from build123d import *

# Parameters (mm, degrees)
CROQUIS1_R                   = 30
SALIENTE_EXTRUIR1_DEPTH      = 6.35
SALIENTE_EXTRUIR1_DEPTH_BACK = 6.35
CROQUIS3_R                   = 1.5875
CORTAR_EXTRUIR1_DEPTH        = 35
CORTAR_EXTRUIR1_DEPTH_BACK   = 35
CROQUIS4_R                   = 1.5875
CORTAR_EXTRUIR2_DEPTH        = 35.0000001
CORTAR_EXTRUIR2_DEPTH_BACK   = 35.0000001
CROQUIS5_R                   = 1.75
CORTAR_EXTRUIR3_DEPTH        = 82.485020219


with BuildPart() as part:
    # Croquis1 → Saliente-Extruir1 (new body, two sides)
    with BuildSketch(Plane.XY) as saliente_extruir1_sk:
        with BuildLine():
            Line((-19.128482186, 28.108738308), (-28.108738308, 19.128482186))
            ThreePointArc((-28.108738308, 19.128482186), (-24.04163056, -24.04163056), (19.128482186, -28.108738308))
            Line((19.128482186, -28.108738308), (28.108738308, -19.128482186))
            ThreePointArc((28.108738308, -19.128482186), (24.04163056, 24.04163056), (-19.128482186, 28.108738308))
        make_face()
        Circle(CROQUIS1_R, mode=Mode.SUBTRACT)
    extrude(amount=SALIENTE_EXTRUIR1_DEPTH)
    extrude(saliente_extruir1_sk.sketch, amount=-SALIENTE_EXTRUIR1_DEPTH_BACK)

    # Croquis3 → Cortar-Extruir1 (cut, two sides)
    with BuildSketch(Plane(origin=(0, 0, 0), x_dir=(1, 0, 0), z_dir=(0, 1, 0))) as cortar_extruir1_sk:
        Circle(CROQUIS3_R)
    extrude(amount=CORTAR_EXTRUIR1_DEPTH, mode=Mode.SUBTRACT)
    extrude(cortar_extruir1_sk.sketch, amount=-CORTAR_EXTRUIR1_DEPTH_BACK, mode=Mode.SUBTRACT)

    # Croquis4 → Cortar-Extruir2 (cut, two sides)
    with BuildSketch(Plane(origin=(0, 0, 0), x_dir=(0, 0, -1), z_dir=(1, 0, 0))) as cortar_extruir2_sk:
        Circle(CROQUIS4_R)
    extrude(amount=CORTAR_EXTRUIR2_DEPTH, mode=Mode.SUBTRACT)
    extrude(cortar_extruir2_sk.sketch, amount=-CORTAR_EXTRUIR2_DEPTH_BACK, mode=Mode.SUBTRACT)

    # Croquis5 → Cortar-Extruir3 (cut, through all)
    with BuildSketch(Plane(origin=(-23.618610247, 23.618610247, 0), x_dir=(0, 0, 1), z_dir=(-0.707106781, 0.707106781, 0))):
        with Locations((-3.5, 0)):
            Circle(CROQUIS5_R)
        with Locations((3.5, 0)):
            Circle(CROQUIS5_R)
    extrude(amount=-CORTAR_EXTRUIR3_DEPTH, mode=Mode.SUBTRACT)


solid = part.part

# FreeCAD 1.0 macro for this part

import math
import FreeCAD as App
import Part
import Sketcher

V = App.Vector
Q = App.Units.Quantity

doc = App.newDocument("Part")
params = doc.addObject("Spreadsheet::Sheet", "Params")
for row, (alias, value) in enumerate([
    ("sketch1_diameter", "60 mm"),
    ("sketch1_radius", "34 mm"),
    ("sketch1_length", "12.7 mm"),
    ("pad1_length", "6.35 mm"),
    ("pad1_length2", "6.35 mm"),
    ("sketch4_diameter", "3.5 mm"),
], start=1):
    params.set(f"A{row}", alias)
    params.set(f"B{row}", "=" + value)
    params.setAlias(f"B{row}", alias)

body = doc.addObject("PartDesign::Body", "Body")

sketch1 = body.newObject("Sketcher::SketchObject", "Sketch")
sketch1.AttachmentSupport = (doc.getObject("XY_Plane"), [""])
sketch1.MapMode = "FlatFace"
sketch1.addGeometry(Part.LineSegment(V(-19.128482, 28.108738, 0), V(-28.108738, 19.128482, 0)), False)
sketch1.addGeometry(Part.ArcOfCircle(Part.Circle(V(0, 0, 0), V(0, 0, 1), 34), math.radians(145.764036), math.radians(304.235964)), False)
sketch1.addGeometry(Part.LineSegment(V(19.128482, -28.108738, 0), V(28.108738, -19.128482, 0)), False)
sketch1.addGeometry(Part.ArcOfCircle(Part.Circle(V(0, 0, 0), V(0, 0, 1), 34), math.radians(-34.235964), math.radians(124.235964)), False)
sketch1.addGeometry(Part.Circle(V(0, 0, 0), V(0, 0, 1), 30), False)
sketch1.addConstraint(Sketcher.Constraint("Coincident", 0, 2, 1, 1))
sketch1.addConstraint(Sketcher.Constraint("Coincident", 1, 2, 2, 1))
sketch1.addConstraint(Sketcher.Constraint("Coincident", 2, 2, 3, 1))
sketch1.addConstraint(Sketcher.Constraint("Coincident", 3, 2, 0, 1))
sketch1.addConstraint(Sketcher.Constraint("Coincident", 1, 3, -1, 1))
sketch1.addConstraint(Sketcher.Constraint("Coincident", 3, 3, -1, 1))
sketch1.addConstraint(Sketcher.Constraint("Coincident", 4, 3, -1, 1))
sketch1.addConstraint(Sketcher.Constraint("Equal", 1, 3))
sketch1.addConstraint(Sketcher.Constraint("Parallel", 0, 2))
sketch1.addConstraint(Sketcher.Constraint("Equal", 0, 2))
sketch1.addConstraint(Sketcher.Constraint("Diameter", 4, Q("60 mm")))
sketch1.addConstraint(Sketcher.Constraint("Radius", 1, Q("34 mm")))
sketch1.addConstraint(Sketcher.Constraint("Angle", 0, Q("-135 deg")))
sketch1.addConstraint(Sketcher.Constraint("Distance", 0, Q("12.7 mm")))
sketch1.setExpression("Constraints[10]", "Params.sketch1_diameter")
sketch1.setExpression("Constraints[11]", "Params.sketch1_radius")
sketch1.setExpression("Constraints[13]", "Params.sketch1_length")
pad1 = body.newObject("PartDesign::Pad", "Pad")
pad1.Profile = sketch1
pad1.Type = "TwoLengths"
pad1.setExpression("Length", "Params.pad1_length")
pad1.setExpression("Length2", "Params.pad1_length2")

sketch2 = body.newObject("Sketcher::SketchObject", "Sketch001")
sketch2.AttachmentSupport = (doc.getObject("XZ_Plane"), [""])
sketch2.MapMode = "FlatFace"
sketch2.addGeometry(Part.Circle(V(0, 0, 0), V(0, 0, 1), 1.5875), False)
sketch2.addConstraint(Sketcher.Constraint("Coincident", 0, 3, -1, 1))
sketch2.addConstraint(Sketcher.Constraint("Diameter", 0, Q("3.175 mm")))
pocket1 = body.newObject("PartDesign::Pocket", "Pocket")
pocket1.Profile = sketch2
pocket1.Type = "ThroughAll"
pocket1.Midplane = True

sketch3 = body.newObject("Sketcher::SketchObject", "Sketch002")
sketch3.AttachmentSupport = (doc.getObject("YZ_Plane"), [""])
sketch3.MapMode = "FlatFace"
sketch3.addGeometry(Part.Circle(V(0, 0, 0), V(0, 0, 1), 1.5875), False)
sketch3.addConstraint(Sketcher.Constraint("Coincident", 0, 3, -1, 1))
sketch3.addConstraint(Sketcher.Constraint("Diameter", 0, Q("3.175 mm")))
pocket2 = body.newObject("PartDesign::Pocket", "Pocket001")
pocket2.Profile = sketch3
pocket2.Type = "ThroughAll"
pocket2.Midplane = True

sketch4 = body.newObject("Sketcher::SketchObject", "Sketch003")
sketch4.Placement = App.Placement(V(-23.61861, 23.61861, 0), App.Rotation(V(0, 0, 1), V(0.707106781, 0.707106781, 0), V(-0.707106781, 0.707106781, 0), "ZXY"))
sketch4.addGeometry(Part.Circle(V(-3.5, 0, 0), V(0, 0, 1), 1.75), False)
sketch4.addGeometry(Part.Circle(V(3.5, 0, 0), V(0, 0, 1), 1.75), False)
sketch4.addConstraint(Sketcher.Constraint("Equal", 0, 1))
sketch4.addConstraint(Sketcher.Constraint("Symmetric", 0, 3, 1, 3, -1, 1))
sketch4.addConstraint(Sketcher.Constraint("PointOnObject", 0, 3, -1))
sketch4.addConstraint(Sketcher.Constraint("Diameter", 0, Q("3.5 mm")))
sketch4.addConstraint(Sketcher.Constraint("DistanceX", 0, 3, 1, 3, Q("7 mm")))
sketch4.setExpression("Constraints[3]", "Params.sketch4_diameter")
pocket3 = body.newObject("PartDesign::Pocket", "Pocket002")
pocket3.Profile = sketch4
pocket3.Type = "ThroughAll"

doc.recompute()
